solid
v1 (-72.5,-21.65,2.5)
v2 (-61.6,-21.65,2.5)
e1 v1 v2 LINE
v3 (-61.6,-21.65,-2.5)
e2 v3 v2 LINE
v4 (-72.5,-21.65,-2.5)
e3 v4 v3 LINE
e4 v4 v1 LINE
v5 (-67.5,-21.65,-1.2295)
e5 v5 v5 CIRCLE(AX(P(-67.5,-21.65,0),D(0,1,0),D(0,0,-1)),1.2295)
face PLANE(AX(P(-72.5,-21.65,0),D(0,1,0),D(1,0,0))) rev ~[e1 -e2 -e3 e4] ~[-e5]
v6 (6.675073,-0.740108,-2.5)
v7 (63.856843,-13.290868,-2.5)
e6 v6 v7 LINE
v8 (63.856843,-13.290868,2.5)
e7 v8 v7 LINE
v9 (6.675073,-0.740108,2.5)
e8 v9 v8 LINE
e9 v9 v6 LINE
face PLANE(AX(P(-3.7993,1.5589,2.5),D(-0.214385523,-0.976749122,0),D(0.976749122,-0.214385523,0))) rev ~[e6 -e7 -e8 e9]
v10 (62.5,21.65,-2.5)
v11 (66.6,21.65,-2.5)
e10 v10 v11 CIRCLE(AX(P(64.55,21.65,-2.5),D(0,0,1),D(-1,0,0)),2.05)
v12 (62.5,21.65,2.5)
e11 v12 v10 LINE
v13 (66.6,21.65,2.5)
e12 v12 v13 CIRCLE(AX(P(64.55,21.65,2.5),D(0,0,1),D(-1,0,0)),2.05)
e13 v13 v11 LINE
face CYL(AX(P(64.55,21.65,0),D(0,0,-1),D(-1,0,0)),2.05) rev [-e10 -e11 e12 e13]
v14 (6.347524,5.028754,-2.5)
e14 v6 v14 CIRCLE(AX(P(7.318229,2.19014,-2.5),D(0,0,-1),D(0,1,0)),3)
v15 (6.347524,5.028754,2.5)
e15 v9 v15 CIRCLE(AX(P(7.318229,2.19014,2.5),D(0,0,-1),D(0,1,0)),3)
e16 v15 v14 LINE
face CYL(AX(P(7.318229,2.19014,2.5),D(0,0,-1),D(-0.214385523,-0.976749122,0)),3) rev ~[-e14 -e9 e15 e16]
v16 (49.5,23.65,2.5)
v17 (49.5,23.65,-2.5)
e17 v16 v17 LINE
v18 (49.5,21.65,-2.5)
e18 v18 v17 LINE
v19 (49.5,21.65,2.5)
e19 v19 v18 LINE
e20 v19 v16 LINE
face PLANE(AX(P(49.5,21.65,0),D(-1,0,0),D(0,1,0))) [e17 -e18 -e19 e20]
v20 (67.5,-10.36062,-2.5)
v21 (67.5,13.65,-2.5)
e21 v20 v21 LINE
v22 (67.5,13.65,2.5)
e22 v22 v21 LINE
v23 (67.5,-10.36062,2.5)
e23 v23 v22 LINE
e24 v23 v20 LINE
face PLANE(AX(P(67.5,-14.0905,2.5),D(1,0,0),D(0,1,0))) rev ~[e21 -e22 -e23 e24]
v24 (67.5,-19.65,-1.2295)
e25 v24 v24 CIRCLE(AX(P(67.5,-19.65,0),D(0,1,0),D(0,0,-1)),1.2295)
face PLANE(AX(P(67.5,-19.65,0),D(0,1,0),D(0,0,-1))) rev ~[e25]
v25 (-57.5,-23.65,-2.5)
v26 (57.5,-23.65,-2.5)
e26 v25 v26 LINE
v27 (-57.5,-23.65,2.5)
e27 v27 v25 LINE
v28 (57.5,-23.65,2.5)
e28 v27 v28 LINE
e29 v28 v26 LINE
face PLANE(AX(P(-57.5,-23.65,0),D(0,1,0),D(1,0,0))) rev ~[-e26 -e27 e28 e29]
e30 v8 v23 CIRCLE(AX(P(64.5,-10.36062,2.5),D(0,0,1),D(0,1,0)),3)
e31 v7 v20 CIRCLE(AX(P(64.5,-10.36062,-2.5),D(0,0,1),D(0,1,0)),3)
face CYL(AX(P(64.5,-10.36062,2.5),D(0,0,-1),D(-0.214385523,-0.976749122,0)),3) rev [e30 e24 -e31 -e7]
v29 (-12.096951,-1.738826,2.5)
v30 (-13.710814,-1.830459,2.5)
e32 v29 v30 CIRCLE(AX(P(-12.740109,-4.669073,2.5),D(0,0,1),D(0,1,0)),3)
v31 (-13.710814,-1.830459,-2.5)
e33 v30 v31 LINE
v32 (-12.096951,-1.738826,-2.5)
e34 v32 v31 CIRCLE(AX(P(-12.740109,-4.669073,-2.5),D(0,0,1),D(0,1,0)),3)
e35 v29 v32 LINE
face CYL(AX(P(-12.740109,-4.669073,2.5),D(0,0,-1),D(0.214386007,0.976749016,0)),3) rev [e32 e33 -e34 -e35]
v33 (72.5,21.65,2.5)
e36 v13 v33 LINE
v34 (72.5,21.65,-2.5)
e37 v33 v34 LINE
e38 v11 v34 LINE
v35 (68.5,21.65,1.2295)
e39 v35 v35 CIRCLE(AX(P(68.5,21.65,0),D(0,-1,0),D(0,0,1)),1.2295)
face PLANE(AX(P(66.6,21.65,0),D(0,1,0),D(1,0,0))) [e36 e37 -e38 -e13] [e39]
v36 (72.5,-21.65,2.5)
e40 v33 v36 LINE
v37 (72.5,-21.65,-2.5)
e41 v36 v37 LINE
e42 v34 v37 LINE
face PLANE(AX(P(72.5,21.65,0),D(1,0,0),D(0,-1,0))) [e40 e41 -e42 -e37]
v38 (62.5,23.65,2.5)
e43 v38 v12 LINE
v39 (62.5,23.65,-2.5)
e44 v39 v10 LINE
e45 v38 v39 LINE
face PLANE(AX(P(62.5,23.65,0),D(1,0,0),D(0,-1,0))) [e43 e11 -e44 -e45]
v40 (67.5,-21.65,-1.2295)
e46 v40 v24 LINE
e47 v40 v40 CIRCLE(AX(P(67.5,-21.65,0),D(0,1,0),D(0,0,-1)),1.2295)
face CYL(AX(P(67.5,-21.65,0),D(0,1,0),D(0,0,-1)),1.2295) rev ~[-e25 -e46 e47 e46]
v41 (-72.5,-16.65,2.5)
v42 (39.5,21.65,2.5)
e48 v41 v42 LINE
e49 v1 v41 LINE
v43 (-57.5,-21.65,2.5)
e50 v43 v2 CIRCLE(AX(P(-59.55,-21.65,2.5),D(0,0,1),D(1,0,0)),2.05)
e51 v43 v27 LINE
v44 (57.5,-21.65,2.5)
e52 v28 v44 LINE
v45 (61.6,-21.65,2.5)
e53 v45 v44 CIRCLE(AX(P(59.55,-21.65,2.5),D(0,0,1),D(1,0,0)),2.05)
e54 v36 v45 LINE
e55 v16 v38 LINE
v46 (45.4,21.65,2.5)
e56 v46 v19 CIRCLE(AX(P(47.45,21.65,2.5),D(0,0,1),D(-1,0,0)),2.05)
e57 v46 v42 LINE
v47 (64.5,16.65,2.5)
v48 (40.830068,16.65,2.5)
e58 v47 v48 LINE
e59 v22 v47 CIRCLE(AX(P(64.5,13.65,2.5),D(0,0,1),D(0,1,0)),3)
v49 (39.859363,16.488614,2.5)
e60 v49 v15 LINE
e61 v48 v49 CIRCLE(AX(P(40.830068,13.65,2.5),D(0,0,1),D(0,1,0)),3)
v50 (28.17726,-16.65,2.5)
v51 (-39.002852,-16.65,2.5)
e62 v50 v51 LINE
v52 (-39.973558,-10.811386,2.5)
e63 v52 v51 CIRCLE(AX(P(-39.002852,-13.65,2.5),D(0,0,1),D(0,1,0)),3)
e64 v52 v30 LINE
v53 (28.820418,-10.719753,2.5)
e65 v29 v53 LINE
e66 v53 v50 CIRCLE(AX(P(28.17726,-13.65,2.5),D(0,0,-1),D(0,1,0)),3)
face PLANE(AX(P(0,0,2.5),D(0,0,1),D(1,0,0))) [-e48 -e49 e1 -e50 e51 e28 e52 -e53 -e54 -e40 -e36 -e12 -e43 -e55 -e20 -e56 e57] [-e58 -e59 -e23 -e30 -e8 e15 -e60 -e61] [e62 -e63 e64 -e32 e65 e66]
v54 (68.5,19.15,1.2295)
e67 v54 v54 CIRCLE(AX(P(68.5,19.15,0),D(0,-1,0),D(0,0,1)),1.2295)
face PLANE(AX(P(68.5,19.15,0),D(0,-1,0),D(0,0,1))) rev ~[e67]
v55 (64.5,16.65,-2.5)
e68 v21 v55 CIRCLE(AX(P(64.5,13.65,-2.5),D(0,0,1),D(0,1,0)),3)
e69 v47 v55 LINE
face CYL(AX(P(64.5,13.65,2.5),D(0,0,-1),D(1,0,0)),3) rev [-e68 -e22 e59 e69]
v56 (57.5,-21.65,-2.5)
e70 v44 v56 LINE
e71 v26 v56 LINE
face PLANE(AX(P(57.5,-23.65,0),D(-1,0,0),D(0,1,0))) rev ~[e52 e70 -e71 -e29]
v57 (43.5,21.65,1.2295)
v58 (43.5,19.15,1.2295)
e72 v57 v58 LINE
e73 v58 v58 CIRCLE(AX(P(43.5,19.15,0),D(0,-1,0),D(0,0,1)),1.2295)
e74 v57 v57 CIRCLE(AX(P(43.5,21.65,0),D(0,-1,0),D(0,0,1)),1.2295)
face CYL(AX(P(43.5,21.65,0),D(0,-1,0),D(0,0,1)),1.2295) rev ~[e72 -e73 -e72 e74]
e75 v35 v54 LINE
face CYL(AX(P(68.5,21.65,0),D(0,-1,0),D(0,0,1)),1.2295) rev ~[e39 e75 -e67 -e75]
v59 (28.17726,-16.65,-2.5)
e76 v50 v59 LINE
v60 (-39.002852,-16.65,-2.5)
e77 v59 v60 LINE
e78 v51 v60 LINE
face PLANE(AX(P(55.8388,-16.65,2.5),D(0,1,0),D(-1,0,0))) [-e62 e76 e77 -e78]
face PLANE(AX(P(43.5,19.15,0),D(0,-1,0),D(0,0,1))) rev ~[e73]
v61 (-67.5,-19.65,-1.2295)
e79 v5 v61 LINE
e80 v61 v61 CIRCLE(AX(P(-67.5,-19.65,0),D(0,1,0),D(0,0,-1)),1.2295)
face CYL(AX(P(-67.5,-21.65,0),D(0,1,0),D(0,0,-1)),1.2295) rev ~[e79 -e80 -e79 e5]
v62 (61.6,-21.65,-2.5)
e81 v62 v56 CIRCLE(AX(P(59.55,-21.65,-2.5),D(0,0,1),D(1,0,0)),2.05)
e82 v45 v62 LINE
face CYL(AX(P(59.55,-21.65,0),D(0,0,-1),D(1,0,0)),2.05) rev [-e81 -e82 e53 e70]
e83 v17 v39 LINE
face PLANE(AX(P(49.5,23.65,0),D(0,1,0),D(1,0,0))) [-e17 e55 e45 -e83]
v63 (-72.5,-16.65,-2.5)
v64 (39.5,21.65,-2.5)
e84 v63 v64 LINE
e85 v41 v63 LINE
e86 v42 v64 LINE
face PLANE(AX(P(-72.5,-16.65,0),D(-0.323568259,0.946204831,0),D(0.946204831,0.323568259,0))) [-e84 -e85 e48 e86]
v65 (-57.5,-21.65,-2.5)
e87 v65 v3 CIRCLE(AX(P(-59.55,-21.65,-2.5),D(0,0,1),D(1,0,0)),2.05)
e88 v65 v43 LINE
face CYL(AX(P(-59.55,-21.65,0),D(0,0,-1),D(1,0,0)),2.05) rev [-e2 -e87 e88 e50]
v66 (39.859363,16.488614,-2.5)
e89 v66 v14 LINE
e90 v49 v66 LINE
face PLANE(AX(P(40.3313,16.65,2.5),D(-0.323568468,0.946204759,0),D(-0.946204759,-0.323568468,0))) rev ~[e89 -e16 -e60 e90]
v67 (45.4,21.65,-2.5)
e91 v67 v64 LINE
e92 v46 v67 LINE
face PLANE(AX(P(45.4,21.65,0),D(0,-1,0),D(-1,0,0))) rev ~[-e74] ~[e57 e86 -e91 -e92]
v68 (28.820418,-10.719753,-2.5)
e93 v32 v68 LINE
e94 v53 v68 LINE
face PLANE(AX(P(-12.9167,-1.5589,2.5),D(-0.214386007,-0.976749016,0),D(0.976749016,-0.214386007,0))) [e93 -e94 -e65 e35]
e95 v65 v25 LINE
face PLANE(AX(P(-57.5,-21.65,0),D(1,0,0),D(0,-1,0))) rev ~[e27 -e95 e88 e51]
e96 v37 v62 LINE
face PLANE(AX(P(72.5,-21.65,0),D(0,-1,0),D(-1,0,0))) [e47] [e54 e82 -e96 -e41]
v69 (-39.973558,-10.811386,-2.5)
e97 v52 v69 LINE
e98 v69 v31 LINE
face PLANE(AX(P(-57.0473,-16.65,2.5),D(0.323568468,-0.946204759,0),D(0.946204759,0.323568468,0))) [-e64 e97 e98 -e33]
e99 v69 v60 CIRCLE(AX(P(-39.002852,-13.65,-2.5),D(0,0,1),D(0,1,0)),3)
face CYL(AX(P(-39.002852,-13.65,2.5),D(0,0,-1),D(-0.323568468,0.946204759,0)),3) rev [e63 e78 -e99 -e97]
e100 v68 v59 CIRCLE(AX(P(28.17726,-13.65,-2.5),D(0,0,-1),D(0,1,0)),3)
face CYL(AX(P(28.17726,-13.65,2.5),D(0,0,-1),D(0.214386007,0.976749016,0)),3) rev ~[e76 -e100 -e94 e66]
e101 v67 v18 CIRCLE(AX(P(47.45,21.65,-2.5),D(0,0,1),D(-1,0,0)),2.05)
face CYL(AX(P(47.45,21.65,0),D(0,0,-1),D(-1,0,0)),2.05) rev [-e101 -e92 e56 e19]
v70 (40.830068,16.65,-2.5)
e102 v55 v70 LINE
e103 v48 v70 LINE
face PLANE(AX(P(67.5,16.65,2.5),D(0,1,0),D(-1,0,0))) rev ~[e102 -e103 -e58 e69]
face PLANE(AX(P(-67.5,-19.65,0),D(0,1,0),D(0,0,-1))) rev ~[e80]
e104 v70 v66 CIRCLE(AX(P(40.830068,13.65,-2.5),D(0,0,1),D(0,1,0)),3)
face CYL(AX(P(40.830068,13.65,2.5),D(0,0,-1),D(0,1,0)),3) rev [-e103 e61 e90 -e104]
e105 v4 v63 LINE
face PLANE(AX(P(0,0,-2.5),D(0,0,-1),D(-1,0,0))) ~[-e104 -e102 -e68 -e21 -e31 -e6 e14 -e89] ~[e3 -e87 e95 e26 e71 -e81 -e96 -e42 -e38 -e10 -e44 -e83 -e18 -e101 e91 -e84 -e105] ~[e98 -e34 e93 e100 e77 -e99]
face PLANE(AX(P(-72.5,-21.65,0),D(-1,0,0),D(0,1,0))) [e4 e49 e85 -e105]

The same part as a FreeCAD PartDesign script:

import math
import FreeCAD as App
import Part
import Sketcher
from FreeCAD import Vector
Q = App.Units.Quantity


def edges_at(feature, points):
    """Names of the edges that pass closest to the given points."""
    edges = feature.Shape.Edges
    near = lambda p: min(range(len(edges)), key=lambda i: edges[i].distToShape(Part.Vertex(*p))[0])
    return sorted({f"Edge{near(p) + 1}" for p in points})

doc = App.newDocument("Part")
body = doc.addObject("PartDesign::Body", "Body")

# Sketch on XY plane
sketch1 = body.newObject("Sketcher::SketchObject", "Sketch")
sketch1.AttachmentSupport = (doc.getObject("XY_Plane"), [""])
sketch1.MapMode = "FlatFace"
sketch1.addGeometry([
    Part.LineSegment(Vector(-72.5, -16.65, 0), Vector(-72.5, -21.65, 0)),  # 0
    Part.LineSegment(Vector(-72.5, -21.65, 0), Vector(-61.6, -21.65, 0)),  # 1
    Part.ArcOfCircle(Part.Circle(Vector(-59.55, -21.65, 0), Vector(0, 0, 1), 2.05), math.radians(0), math.radians(180)),  # 2
    Part.LineSegment(Vector(-57.5, -21.65, 0), Vector(-57.5, -23.65, 0)),  # 3
    Part.LineSegment(Vector(-57.5, -23.65, 0), Vector(57.5, -23.65, 0)),  # 4
    Part.LineSegment(Vector(57.5, -23.65, 0), Vector(57.5, -21.65, 0)),  # 5
    Part.ArcOfCircle(Part.Circle(Vector(59.55, -21.65, 0), Vector(0, 0, 1), 2.05), math.radians(0), math.radians(180)),  # 6
    Part.LineSegment(Vector(61.6, -21.65, 0), Vector(72.5, -21.65, 0)),  # 7
    Part.LineSegment(Vector(72.5, -21.65, 0), Vector(72.5, 21.65, 0)),  # 8
    Part.LineSegment(Vector(72.5, 21.65, 0), Vector(66.6, 21.65, 0)),  # 9
    Part.ArcOfCircle(Part.Circle(Vector(64.55, 21.65, 0), Vector(0, 0, 1), 2.05), math.radians(180), math.radians(360)),  # 10
    Part.LineSegment(Vector(62.5, 21.65, 0), Vector(62.5, 23.65, 0)),  # 11
    Part.LineSegment(Vector(62.5, 23.65, 0), Vector(49.5, 23.65, 0)),  # 12
    Part.LineSegment(Vector(49.5, 23.65, 0), Vector(49.5, 21.65, 0)),  # 13
    Part.ArcOfCircle(Part.Circle(Vector(47.45, 21.65, 0), Vector(0, 0, 1), 2.05), math.radians(180), math.radians(360)),  # 14
    Part.LineSegment(Vector(45.4, 21.65, 0), Vector(39.5, 21.65, 0)),  # 15
    Part.LineSegment(Vector(39.5, 21.65, 0), Vector(-72.5, -16.65, 0)),  # 16
], False)
sketch1.addConstraint([
    Sketcher.Constraint("Coincident", 0, 2, 1, 1),
    Sketcher.Constraint("Coincident", 1, 2, 2, 2),
    Sketcher.Constraint("Tangent", 2, 1, 3, 1),
    Sketcher.Constraint("Coincident", 3, 2, 4, 1),
    Sketcher.Constraint("Coincident", 4, 2, 5, 1),
    Sketcher.Constraint("Tangent", 5, 2, 6, 2),
    Sketcher.Constraint("Coincident", 6, 1, 7, 1),
    Sketcher.Constraint("Coincident", 7, 2, 8, 1),
    Sketcher.Constraint("Coincident", 8, 2, 9, 1),
    Sketcher.Constraint("Coincident", 9, 2, 10, 2),
    Sketcher.Constraint("Tangent", 10, 1, 11, 1),
    Sketcher.Constraint("Coincident", 11, 2, 12, 1),
    Sketcher.Constraint("Coincident", 12, 2, 13, 1),
    Sketcher.Constraint("Tangent", 13, 2, 14, 2),
    Sketcher.Constraint("Coincident", 14, 1, 15, 1),
    Sketcher.Constraint("Coincident", 15, 2, 16, 1),
    Sketcher.Constraint("Coincident", 16, 2, 0, 1),
    Sketcher.Constraint("Vertical", 0),
    Sketcher.Constraint("Horizontal", 1),
    Sketcher.Constraint("Vertical", 3),
    Sketcher.Constraint("Horizontal", 4),
    Sketcher.Constraint("Vertical", 5),
    Sketcher.Constraint("Horizontal", 7),
    Sketcher.Constraint("Vertical", 8),
    Sketcher.Constraint("Horizontal", 9),
    Sketcher.Constraint("Vertical", 11),
    Sketcher.Constraint("Horizontal", 12),
    Sketcher.Constraint("Vertical", 13),
    Sketcher.Constraint("Horizontal", 15),
    Sketcher.Constraint("Equal", 2, 6),
    Sketcher.Constraint("Equal", 6, 10),
    Sketcher.Constraint("Equal", 10, 14),
    Sketcher.Constraint("Symmetric", 0, 2, 8, 2, -1, 1),
    Sketcher.Constraint("Symmetric", 2, 3, 6, 3, -2),
    Sketcher.Constraint("Horizontal", 10, 3, 14, 3),
    Sketcher.Constraint("Horizontal", 6, 3, 0, 2),
    Sketcher.Constraint("Horizontal", 5, 2, 6, 1),
    Sketcher.Constraint("Horizontal", 14, 3, 8, 2),
    Sketcher.Constraint("Horizontal", 13, 2, 14, 1),
    Sketcher.Constraint("Equal", 9, 15),
    Sketcher.Constraint("Equal", 5, 11),
    Sketcher.Constraint("DistanceY", 0, 2, 0, 1, 5.0),
    Sketcher.Constraint("DistanceY", 3, 2, 3, 1, 2.0),
    Sketcher.Constraint("Radius", 2, 2.05),
    Sketcher.Constraint("DistanceY", 8, 1, 8, 2, 43.3),
    Sketcher.Constraint("DistanceX", 6, 3, 10, 3, 5.0),
    Sketcher.Constraint("DistanceX", 10, 1, 8, 2, 10.0),
    Sketcher.Constraint("DistanceX", 4, 1, 4, 2, 115.0),
    Sketcher.Constraint("DistanceX", 12, 2, 12, 1, 13.0),
])
pad1 = body.newObject("PartDesign::Pad", "Pad")
pad1.Profile = sketch1
pad1.Length = 2.5
doc.recompute()

mirrored = body.newObject("PartDesign::Mirrored", "Mirrored")
mirrored.Originals = [pad1]
mirrored.MirrorPlane = (doc.getObject("XY_Plane"), [""])
body.Tip = mirrored

# Sketch on XZ plane
sketch2 = body.newObject("Sketcher::SketchObject", "Sketch001")
sketch2.AttachmentSupport = (doc.getObject("XZ_Plane"), [""])
sketch2.MapMode = "FlatFace"
sketch2.AttachmentOffset = App.Placement(Vector(0, 0, 21.65), App.Rotation())
sketch2.addGeometry([
    Part.Circle(Vector(-67.5, 0, 0), Vector(0, 0, 1), 1.2295),
    Part.Circle(Vector(67.5, 0, 0), Vector(0, 0, 1), 1.2295),
], False)
sketch2.addConstraint([
    Sketcher.Constraint("Equal", 0, 1),
    Sketcher.Constraint("Symmetric", 0, 3, 1, 3, -1, 1),
    Sketcher.Constraint("PointOnObject", 0, 3, -1),
    Sketcher.Constraint("Diameter", 0, 2.459),
    Sketcher.Constraint("DistanceX", 0, 3, 1, 3, 135.0),
])
doc.recompute()
hole = body.newObject("PartDesign::Hole", "Hole")
hole.Profile = sketch2
hole.ThreadType = "None"
hole.Diameter = 2.459
hole.DepthType = "Dimension"
hole.Depth = 2
hole.DrillPoint = "Flat"

# Sketch on XZ plane
sketch3 = body.newObject("Sketcher::SketchObject", "Sketch002")
sketch3.AttachmentSupport = (doc.getObject("XZ_Plane"), [""])
sketch3.MapMode = "FlatFace"
sketch3.AttachmentOffset = App.Placement(Vector(0, 0, -21.65), App.Rotation())
sketch3.addGeometry([
    Part.Circle(Vector(68.5, 0, 0), Vector(0, 0, 1), 1.2295),
    Part.Circle(Vector(43.5, 0, 0), Vector(0, 0, 1), 1.2295),
], False)
sketch3.addConstraint([
    Sketcher.Constraint("Equal", 0, 1),
    Sketcher.Constraint("PointOnObject", 0, 3, -1),
    Sketcher.Constraint("PointOnObject", 1, 3, -1),
    Sketcher.Constraint("Diameter", 0, 2.459),
    Sketcher.Constraint("DistanceX", 1, 3, 0, 3, 25.0),
    Sketcher.Constraint("DistanceX", -1, 1, 0, 3, 68.5),
])
doc.recompute()
hole2 = body.newObject("PartDesign::Hole", "Hole001")
hole2.Profile = sketch3
hole2.ThreadType = "None"
hole2.Diameter = 2.459
hole2.DepthType = "Dimension"
hole2.Depth = 2.5
hole2.DrillPoint = "Flat"
hole2.Reversed = True

# Sketch on XY plane
sketch4 = body.newObject("Sketcher::SketchObject", "Sketch003")
sketch4.AttachmentSupport = (doc.getObject("XY_Plane"), [""])
sketch4.MapMode = "FlatFace"
sketch4.AttachmentOffset = App.Placement(Vector(0, 0, 2.5), App.Rotation())
sketch4.addGeometry([
    Part.LineSegment(Vector(-3.7993, 1.5589, 0), Vector(67.5, -14.0905, 0)),  # 0
    Part.LineSegment(Vector(67.5, -14.0905, 0), Vector(67.5, 16.65, 0)),  # 1
    Part.LineSegment(Vector(67.5, 16.65, 0), Vector(40.3313, 16.65, 0)),  # 2
    Part.LineSegment(Vector(40.3313, 16.65, 0), Vector(-3.7993, 1.5589, 0)),  # 3
    Part.LineSegment(Vector(-57.0473, -16.65, 0), Vector(55.8388, -16.65, 0)),  # 4
    Part.LineSegment(Vector(55.8388, -16.65, 0), Vector(-12.9167, -1.5589, 0)),  # 5
    Part.LineSegment(Vector(-12.9167, -1.5589, 0), Vector(-57.0473, -16.65, 0)),  # 6
], False)
sketch4.addConstraint([
    Sketcher.Constraint("Coincident", 0, 2, 1, 1),
    Sketcher.Constraint("Coincident", 1, 2, 2, 1),
    Sketcher.Constraint("Coincident", 2, 2, 3, 1),
    Sketcher.Constraint("Coincident", 3, 2, 0, 1),
    Sketcher.Constraint("Coincident", 4, 2, 5, 1),
    Sketcher.Constraint("Coincident", 5, 2, 6, 1),
    Sketcher.Constraint("Coincident", 6, 2, 4, 1),
    Sketcher.Constraint("Vertical", 1),
    Sketcher.Constraint("Horizontal", 2),
    Sketcher.Constraint("Horizontal", 4),
    Sketcher.Constraint("Parallel", 0, 5),
    Sketcher.Constraint("Parallel", 3, 6),
    Sketcher.Constraint("Equal", 3, 6),
    Sketcher.Constraint("DistanceX", -1, 1, 0, 2, 67.5),
    Sketcher.Constraint("Angle", 0, Q("-12.3795 deg")),
    Sketcher.Constraint("Angle", 3, Q("-161.1211 deg")),
    Sketcher.Constraint("DistanceY", 4, 2, 1, 2, 33.3),
    Sketcher.Constraint("DistanceX", 4, 1, 4, 2, 112.886),
    Sketcher.Constraint("DistanceY", -1, 1, 1, 2, 16.65),
    Sketcher.Constraint("DistanceX", 2, 2, 2, 1, 27.1687),
    Sketcher.Constraint("DistanceX", 3, 2, 4, 2, 59.638),
])
pocket1 = body.newObject("PartDesign::Pocket", "Pocket")
pocket1.Profile = sketch4
pocket1.Length = 10
doc.recompute()

fillet = body.newObject("PartDesign::Fillet", "Fillet")
fillet.Base = (pocket1, edges_at(pocket1, [
    (-3.799, 1.559, 0),
    (40.331, 16.65, 0),
    (67.5, -14.091, 0),
    (55.839, -16.65, 0),
    (-12.917, -1.559, 0),
    (-57.047, -16.65, 0),
    (67.5, 16.65, 0),
]))
fillet.Radius = 3

doc.recompute()
